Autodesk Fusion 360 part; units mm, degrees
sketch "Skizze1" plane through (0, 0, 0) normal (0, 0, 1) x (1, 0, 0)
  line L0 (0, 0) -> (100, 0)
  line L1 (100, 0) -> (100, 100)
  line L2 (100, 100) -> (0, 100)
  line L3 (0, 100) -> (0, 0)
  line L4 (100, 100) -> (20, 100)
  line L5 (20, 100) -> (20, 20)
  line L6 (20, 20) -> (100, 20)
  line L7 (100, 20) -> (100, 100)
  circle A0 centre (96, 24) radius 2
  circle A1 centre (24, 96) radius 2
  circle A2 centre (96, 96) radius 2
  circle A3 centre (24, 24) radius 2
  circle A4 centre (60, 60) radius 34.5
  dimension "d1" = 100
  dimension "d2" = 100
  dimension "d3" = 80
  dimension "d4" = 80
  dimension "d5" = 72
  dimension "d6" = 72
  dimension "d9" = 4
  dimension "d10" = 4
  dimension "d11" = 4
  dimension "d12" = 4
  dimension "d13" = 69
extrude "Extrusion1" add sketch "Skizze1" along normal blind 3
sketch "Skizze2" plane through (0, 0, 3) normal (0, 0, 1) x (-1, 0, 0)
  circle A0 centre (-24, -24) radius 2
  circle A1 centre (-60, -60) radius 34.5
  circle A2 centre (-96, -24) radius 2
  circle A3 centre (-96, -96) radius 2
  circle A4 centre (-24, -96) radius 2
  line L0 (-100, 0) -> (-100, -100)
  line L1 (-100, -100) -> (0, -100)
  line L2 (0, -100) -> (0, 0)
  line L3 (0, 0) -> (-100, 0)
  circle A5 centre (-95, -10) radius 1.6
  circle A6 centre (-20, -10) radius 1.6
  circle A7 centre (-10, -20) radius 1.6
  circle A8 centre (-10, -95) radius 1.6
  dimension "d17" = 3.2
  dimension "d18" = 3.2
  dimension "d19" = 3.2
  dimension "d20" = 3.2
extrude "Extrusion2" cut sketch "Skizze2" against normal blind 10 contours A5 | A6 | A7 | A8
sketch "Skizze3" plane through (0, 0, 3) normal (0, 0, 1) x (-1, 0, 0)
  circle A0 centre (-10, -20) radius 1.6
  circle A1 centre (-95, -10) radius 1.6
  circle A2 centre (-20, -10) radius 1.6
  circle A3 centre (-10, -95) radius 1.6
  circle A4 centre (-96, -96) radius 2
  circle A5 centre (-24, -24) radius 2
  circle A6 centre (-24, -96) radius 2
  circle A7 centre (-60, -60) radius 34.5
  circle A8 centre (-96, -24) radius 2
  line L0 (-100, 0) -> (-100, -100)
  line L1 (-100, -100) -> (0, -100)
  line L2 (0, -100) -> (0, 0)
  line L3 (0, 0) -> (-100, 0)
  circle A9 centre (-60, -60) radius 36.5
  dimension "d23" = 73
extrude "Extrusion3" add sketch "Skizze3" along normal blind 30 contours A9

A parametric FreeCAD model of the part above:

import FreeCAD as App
import Part
import Sketcher

V = App.Vector
Q = App.Units.Quantity


def add_polygon(sketch, points):
    """Adds a closed chain of lines whose ends are joined by coincident constraints."""
    first, n = sketch.GeometryCount, len(points)
    for a, b in zip(points, points[1:] + points[:1]):
        sketch.addGeometry(Part.LineSegment(App.Vector(*a, 0), App.Vector(*b, 0)), False)
    for i in range(n):
        sketch.addConstraint(Sketcher.Constraint("Coincident", first + i, 2, first + (i + 1) % n, 1))

doc = App.newDocument("Part")
params = doc.addObject("Spreadsheet::Sheet", "Params")
for row, (alias, value) in enumerate([
    ("sketch1_diameter", "69 mm"),
    ("sketch1_diameter2", "4 mm"),
    ("sketch1_width", "100 mm"),
    ("pad1_length", "3 mm"),
    ("sketch2_diameter", "3.2 mm"),
    ("pocket1_length", "10 mm"),
    ("sketch3_diameter", "73 mm"),
    ("sketch3_diameter2", "69 mm"),
    ("pad2_length", "30 mm"),
], start=1):
    params.set(f"A{row}", alias)
    params.set(f"B{row}", "=" + value)
    params.setAlias(f"B{row}", alias)

body = doc.addObject("PartDesign::Body", "Body")

sketch1 = doc.addObject("Sketcher::SketchObject", "Sketch")
body.addObject(sketch1)
sketch1.AttachmentSupport = (doc.XY_Plane, [""])
sketch1.MapMode = "FlatFace"
add_polygon(sketch1, [(0, 100), (0, 0), (100, 0), (100, 100)])
sketch1.addGeometry(Part.Circle(V(60, 60, 0), V(0, 0, 1), 34.5), False)
sketch1.addGeometry(Part.Circle(V(96, 96, 0), V(0, 0, 1), 2), False)
sketch1.addGeometry(Part.Circle(V(24, 24, 0), V(0, 0, 1), 2), False)
sketch1.addGeometry(Part.Circle(V(96, 24, 0), V(0, 0, 1), 2), False)
sketch1.addGeometry(Part.Circle(V(24, 96, 0), V(0, 0, 1), 2), False)
sketch1.addConstraint([
    Sketcher.Constraint("Vertical", 0),
    Sketcher.Constraint("Horizontal", 1),
    Sketcher.Constraint("Vertical", 2),
    Sketcher.Constraint("Horizontal", 3),
    Sketcher.Constraint("Coincident", 0, 2, -1, 1),
    Sketcher.Constraint("Equal", 5, 6),
    Sketcher.Constraint("Equal", 6, 7),
    Sketcher.Constraint("Equal", 7, 8),
    Sketcher.Constraint("Horizontal", 6, 3, 7, 3),
    Sketcher.Constraint("Horizontal", 5, 3, 8, 3),
    Sketcher.Constraint("Vertical", 5, 3, 7, 3),
    Sketcher.Constraint("Vertical", 6, 3, 8, 3),
    Sketcher.Constraint("Equal", 3, 0),
    Sketcher.Constraint("Diameter", 4, Q("69 mm")),
    Sketcher.Constraint("Diameter", 5, Q("4 mm")),
    Sketcher.Constraint("DistanceX", 1, 1, 1, 2, Q("100 mm")),
    Sketcher.Constraint("DistanceX", 6, 3, 5, 3, Q("72 mm")),
    Sketcher.Constraint("DistanceY", 6, 3, 5, 3, Q("72 mm")),
    Sketcher.Constraint("DistanceX", 7, 3, 1, 2, Q("4 mm")),
    Sketcher.Constraint("DistanceY", 5, 3, 2, 2, Q("4 mm")),
    Sketcher.Constraint("DistanceX", -1, 1, 4, 3, Q("60 mm")),
    Sketcher.Constraint("DistanceY", -1, 1, 4, 3, Q("60 mm")),
])
sketch1.setExpression("Constraints[17]", "Params.sketch1_diameter")
sketch1.setExpression("Constraints[18]", "Params.sketch1_diameter2")
sketch1.setExpression("Constraints[19]", "Params.sketch1_width")
pad1 = doc.addObject("PartDesign::Pad", "Pad")
body.addObject(pad1)
pad1.Profile = sketch1
pad1.setExpression("Length", "Params.pad1_length")

sketch2 = doc.addObject("Sketcher::SketchObject", "Sketch001")
body.addObject(sketch2)
sketch2.AttachmentSupport = (doc.XY_Plane, [""])
sketch2.MapMode = "FlatFace"
sketch2.AttachmentOffset = App.Placement(V(0, 0, 3), App.Rotation())
sketch2.addGeometry([
    Part.Circle(V(95, 10, 0), V(0, 0, 1), 1.6),
    Part.Circle(V(20, 10, 0), V(0, 0, 1), 1.6),
    Part.Circle(V(10, 20, 0), V(0, 0, 1), 1.6),
    Part.Circle(V(10, 95, 0), V(0, 0, 1), 1.6),
], False)
sketch2.addConstraint([
    Sketcher.Constraint("Equal", 0, 1),
    Sketcher.Constraint("Equal", 1, 2),
    Sketcher.Constraint("Equal", 2, 3),
    Sketcher.Constraint("Horizontal", 0, 3, 1, 3),
    Sketcher.Constraint("Vertical", 2, 3, 3, 3),
    Sketcher.Constraint("Diameter", 0, Q("3.2 mm")),
    Sketcher.Constraint("DistanceX", -1, 1, 0, 3, Q("95 mm")),
    Sketcher.Constraint("DistanceY", -1, 1, 0, 3, Q("10 mm")),
    Sketcher.Constraint("DistanceX", -1, 1, 1, 3, Q("20 mm")),
    Sketcher.Constraint("DistanceX", -1, 1, 2, 3, Q("10 mm")),
    Sketcher.Constraint("DistanceY", -1, 1, 2, 3, Q("20 mm")),
    Sketcher.Constraint("DistanceY", -1, 1, 3, 3, Q("95 mm")),
])
sketch2.setExpression("Constraints[5]", "Params.sketch2_diameter")
pocket1 = doc.addObject("PartDesign::Pocket", "Pocket")
body.addObject(pocket1)
pocket1.Profile = sketch2
pocket1.setExpression("Length", "Params.pocket1_length")

sketch3 = doc.addObject("Sketcher::SketchObject", "Sketch002")
body.addObject(sketch3)
sketch3.AttachmentSupport = (doc.XY_Plane, [""])
sketch3.MapMode = "FlatFace"
sketch3.AttachmentOffset = App.Placement(V(0, 0, 3), App.Rotation())
sketch3.addGeometry([
    Part.Circle(V(60, 60, 0), V(0, 0, 1), 36.5),
    Part.Circle(V(60, 60, 0), V(0, 0, 1), 34.5),
], False)
sketch3.addConstraint([
    Sketcher.Constraint("Coincident", 1, 3, 0, 3),
    Sketcher.Constraint("Diameter", 0, Q("73 mm")),
    Sketcher.Constraint("Diameter", 1, Q("69 mm")),
    Sketcher.Constraint("DistanceX", -1, 1, 0, 3, Q("60 mm")),
    Sketcher.Constraint("DistanceY", -1, 1, 0, 3, Q("60 mm")),
])
sketch3.setExpression("Constraints[1]", "Params.sketch3_diameter")
sketch3.setExpression("Constraints[2]", "Params.sketch3_diameter2")
pad2 = doc.addObject("PartDesign::Pad", "Pad001")
body.addObject(pad2)
pad2.Profile = sketch3
pad2.setExpression("Length", "Params.pad2_length")

doc.recompute()
